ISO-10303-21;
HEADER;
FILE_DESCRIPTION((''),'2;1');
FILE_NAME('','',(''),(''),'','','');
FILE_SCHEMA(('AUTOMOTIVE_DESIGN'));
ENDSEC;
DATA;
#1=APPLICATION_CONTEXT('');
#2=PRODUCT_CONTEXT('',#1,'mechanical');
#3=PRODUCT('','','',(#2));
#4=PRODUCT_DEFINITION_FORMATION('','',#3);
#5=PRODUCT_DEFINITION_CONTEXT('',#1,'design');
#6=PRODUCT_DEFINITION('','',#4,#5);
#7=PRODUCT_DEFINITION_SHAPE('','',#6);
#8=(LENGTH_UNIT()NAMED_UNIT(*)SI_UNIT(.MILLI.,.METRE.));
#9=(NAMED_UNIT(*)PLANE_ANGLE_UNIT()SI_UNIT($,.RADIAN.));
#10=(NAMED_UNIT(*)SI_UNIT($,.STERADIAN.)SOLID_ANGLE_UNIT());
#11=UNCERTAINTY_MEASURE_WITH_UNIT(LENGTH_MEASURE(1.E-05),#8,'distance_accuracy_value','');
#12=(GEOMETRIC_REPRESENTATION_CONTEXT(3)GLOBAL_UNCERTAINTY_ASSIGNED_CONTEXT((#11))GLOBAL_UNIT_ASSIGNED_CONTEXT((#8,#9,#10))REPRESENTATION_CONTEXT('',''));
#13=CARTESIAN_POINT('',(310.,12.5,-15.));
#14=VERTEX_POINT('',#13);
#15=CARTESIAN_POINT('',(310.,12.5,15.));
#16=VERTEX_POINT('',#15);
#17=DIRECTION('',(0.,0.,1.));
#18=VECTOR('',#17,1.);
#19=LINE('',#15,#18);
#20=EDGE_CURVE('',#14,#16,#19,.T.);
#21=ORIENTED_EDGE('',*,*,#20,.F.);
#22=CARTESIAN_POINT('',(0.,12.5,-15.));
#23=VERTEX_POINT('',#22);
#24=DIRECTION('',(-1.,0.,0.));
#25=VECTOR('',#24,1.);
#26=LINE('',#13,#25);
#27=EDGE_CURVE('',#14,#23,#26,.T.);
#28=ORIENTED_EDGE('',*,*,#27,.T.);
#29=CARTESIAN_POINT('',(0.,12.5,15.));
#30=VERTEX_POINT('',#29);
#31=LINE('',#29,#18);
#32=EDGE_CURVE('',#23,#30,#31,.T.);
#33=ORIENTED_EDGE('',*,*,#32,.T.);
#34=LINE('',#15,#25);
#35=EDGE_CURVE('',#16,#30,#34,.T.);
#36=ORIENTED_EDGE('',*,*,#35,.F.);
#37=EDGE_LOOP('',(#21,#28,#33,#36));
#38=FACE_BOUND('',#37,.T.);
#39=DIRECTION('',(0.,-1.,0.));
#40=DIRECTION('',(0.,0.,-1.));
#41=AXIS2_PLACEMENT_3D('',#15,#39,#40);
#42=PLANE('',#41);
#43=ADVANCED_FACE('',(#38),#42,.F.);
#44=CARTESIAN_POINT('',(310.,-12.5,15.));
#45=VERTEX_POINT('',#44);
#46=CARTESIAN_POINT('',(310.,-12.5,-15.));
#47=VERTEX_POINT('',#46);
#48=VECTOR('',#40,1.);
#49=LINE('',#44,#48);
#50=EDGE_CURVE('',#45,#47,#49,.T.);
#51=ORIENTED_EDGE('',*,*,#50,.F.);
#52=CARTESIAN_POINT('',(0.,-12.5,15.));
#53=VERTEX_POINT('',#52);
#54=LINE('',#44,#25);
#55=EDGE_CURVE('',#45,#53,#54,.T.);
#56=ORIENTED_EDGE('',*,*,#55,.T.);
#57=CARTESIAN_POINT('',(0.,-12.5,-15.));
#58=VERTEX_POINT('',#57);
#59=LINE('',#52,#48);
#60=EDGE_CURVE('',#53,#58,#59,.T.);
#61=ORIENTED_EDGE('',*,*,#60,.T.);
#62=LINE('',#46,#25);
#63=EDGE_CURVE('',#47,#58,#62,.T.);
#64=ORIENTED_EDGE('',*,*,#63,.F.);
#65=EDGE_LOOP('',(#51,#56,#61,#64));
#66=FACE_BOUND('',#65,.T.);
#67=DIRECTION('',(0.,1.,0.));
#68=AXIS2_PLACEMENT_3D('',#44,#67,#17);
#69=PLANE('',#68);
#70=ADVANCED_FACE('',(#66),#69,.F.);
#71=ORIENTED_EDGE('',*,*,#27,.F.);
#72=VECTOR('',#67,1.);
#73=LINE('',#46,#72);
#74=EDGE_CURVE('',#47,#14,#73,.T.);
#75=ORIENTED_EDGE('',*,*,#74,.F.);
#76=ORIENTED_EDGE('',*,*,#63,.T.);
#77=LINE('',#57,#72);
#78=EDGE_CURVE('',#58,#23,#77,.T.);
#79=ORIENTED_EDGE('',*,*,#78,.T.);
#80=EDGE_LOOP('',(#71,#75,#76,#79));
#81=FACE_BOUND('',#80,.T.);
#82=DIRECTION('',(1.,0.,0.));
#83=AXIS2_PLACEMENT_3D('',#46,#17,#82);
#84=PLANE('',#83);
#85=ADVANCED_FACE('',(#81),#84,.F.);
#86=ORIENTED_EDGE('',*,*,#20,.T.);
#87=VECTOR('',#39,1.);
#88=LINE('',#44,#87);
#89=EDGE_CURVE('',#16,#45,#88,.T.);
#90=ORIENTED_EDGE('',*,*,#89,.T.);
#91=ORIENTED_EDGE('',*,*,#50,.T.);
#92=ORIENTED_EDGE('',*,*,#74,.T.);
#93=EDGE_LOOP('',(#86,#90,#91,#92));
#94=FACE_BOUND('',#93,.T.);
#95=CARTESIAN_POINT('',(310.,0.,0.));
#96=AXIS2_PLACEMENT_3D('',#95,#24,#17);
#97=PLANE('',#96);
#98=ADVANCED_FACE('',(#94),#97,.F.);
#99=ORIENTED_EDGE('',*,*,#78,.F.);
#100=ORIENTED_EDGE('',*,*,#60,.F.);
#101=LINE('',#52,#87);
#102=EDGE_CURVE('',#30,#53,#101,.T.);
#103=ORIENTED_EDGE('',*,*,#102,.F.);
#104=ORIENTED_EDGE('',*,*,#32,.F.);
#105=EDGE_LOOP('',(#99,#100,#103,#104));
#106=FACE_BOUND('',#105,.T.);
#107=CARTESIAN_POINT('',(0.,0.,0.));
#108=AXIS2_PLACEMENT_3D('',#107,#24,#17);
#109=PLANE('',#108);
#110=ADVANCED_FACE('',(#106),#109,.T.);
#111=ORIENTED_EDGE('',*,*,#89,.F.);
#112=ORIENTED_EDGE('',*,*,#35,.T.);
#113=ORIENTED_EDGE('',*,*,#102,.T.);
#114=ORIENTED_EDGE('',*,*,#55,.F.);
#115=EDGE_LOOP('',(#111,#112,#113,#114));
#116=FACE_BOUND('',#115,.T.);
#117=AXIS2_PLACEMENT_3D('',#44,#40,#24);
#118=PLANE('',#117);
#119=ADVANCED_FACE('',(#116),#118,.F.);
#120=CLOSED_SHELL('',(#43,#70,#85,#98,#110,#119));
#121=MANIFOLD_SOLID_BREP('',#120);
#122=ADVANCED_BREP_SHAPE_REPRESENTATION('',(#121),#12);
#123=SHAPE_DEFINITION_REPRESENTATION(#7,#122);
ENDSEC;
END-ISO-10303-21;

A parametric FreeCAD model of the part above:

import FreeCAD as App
import Part
import Sketcher


def add_polygon(sketch, points):
    """Adds a closed chain of lines whose ends are joined by coincident constraints."""
    first, n = sketch.GeometryCount, len(points)
    for a, b in zip(points, points[1:] + points[:1]):
        sketch.addGeometry(Part.LineSegment(App.Vector(*a, 0), App.Vector(*b, 0)), False)
    for i in range(n):
        sketch.addConstraint(Sketcher.Constraint("Coincident", first + i, 2, first + (i + 1) % n, 1))

doc = App.newDocument("Part")
body = doc.addObject("PartDesign::Body", "Body")

# Sketch on YZ plane
sketch1 = body.newObject("Sketcher::SketchObject", "Sketch")
sketch1.AttachmentSupport = (doc.getObject("YZ_Plane"), [""])
sketch1.MapMode = "FlatFace"
add_polygon(sketch1, [(12, 15), (-12, 15), (-12, -15), (12, -15)])  # lines 0-3
sketch1.addConstraint([
    Sketcher.Constraint("Horizontal", 0),
    Sketcher.Constraint("Vertical", 1),
    Sketcher.Constraint("Horizontal", 2),
    Sketcher.Constraint("Vertical", 3),
    Sketcher.Constraint("Symmetric", 0, 2, 2, 2, -1, 1),
    Sketcher.Constraint("DistanceX", 0, 2, 0, 1, 25.0),
    Sketcher.Constraint("DistanceY", 1, 2, 1, 1, 30.0),
])
pad1 = body.newObject("PartDesign::Pad", "Pad")
pad1.Profile = sketch1
pad1.Length = 310

doc.recompute()
